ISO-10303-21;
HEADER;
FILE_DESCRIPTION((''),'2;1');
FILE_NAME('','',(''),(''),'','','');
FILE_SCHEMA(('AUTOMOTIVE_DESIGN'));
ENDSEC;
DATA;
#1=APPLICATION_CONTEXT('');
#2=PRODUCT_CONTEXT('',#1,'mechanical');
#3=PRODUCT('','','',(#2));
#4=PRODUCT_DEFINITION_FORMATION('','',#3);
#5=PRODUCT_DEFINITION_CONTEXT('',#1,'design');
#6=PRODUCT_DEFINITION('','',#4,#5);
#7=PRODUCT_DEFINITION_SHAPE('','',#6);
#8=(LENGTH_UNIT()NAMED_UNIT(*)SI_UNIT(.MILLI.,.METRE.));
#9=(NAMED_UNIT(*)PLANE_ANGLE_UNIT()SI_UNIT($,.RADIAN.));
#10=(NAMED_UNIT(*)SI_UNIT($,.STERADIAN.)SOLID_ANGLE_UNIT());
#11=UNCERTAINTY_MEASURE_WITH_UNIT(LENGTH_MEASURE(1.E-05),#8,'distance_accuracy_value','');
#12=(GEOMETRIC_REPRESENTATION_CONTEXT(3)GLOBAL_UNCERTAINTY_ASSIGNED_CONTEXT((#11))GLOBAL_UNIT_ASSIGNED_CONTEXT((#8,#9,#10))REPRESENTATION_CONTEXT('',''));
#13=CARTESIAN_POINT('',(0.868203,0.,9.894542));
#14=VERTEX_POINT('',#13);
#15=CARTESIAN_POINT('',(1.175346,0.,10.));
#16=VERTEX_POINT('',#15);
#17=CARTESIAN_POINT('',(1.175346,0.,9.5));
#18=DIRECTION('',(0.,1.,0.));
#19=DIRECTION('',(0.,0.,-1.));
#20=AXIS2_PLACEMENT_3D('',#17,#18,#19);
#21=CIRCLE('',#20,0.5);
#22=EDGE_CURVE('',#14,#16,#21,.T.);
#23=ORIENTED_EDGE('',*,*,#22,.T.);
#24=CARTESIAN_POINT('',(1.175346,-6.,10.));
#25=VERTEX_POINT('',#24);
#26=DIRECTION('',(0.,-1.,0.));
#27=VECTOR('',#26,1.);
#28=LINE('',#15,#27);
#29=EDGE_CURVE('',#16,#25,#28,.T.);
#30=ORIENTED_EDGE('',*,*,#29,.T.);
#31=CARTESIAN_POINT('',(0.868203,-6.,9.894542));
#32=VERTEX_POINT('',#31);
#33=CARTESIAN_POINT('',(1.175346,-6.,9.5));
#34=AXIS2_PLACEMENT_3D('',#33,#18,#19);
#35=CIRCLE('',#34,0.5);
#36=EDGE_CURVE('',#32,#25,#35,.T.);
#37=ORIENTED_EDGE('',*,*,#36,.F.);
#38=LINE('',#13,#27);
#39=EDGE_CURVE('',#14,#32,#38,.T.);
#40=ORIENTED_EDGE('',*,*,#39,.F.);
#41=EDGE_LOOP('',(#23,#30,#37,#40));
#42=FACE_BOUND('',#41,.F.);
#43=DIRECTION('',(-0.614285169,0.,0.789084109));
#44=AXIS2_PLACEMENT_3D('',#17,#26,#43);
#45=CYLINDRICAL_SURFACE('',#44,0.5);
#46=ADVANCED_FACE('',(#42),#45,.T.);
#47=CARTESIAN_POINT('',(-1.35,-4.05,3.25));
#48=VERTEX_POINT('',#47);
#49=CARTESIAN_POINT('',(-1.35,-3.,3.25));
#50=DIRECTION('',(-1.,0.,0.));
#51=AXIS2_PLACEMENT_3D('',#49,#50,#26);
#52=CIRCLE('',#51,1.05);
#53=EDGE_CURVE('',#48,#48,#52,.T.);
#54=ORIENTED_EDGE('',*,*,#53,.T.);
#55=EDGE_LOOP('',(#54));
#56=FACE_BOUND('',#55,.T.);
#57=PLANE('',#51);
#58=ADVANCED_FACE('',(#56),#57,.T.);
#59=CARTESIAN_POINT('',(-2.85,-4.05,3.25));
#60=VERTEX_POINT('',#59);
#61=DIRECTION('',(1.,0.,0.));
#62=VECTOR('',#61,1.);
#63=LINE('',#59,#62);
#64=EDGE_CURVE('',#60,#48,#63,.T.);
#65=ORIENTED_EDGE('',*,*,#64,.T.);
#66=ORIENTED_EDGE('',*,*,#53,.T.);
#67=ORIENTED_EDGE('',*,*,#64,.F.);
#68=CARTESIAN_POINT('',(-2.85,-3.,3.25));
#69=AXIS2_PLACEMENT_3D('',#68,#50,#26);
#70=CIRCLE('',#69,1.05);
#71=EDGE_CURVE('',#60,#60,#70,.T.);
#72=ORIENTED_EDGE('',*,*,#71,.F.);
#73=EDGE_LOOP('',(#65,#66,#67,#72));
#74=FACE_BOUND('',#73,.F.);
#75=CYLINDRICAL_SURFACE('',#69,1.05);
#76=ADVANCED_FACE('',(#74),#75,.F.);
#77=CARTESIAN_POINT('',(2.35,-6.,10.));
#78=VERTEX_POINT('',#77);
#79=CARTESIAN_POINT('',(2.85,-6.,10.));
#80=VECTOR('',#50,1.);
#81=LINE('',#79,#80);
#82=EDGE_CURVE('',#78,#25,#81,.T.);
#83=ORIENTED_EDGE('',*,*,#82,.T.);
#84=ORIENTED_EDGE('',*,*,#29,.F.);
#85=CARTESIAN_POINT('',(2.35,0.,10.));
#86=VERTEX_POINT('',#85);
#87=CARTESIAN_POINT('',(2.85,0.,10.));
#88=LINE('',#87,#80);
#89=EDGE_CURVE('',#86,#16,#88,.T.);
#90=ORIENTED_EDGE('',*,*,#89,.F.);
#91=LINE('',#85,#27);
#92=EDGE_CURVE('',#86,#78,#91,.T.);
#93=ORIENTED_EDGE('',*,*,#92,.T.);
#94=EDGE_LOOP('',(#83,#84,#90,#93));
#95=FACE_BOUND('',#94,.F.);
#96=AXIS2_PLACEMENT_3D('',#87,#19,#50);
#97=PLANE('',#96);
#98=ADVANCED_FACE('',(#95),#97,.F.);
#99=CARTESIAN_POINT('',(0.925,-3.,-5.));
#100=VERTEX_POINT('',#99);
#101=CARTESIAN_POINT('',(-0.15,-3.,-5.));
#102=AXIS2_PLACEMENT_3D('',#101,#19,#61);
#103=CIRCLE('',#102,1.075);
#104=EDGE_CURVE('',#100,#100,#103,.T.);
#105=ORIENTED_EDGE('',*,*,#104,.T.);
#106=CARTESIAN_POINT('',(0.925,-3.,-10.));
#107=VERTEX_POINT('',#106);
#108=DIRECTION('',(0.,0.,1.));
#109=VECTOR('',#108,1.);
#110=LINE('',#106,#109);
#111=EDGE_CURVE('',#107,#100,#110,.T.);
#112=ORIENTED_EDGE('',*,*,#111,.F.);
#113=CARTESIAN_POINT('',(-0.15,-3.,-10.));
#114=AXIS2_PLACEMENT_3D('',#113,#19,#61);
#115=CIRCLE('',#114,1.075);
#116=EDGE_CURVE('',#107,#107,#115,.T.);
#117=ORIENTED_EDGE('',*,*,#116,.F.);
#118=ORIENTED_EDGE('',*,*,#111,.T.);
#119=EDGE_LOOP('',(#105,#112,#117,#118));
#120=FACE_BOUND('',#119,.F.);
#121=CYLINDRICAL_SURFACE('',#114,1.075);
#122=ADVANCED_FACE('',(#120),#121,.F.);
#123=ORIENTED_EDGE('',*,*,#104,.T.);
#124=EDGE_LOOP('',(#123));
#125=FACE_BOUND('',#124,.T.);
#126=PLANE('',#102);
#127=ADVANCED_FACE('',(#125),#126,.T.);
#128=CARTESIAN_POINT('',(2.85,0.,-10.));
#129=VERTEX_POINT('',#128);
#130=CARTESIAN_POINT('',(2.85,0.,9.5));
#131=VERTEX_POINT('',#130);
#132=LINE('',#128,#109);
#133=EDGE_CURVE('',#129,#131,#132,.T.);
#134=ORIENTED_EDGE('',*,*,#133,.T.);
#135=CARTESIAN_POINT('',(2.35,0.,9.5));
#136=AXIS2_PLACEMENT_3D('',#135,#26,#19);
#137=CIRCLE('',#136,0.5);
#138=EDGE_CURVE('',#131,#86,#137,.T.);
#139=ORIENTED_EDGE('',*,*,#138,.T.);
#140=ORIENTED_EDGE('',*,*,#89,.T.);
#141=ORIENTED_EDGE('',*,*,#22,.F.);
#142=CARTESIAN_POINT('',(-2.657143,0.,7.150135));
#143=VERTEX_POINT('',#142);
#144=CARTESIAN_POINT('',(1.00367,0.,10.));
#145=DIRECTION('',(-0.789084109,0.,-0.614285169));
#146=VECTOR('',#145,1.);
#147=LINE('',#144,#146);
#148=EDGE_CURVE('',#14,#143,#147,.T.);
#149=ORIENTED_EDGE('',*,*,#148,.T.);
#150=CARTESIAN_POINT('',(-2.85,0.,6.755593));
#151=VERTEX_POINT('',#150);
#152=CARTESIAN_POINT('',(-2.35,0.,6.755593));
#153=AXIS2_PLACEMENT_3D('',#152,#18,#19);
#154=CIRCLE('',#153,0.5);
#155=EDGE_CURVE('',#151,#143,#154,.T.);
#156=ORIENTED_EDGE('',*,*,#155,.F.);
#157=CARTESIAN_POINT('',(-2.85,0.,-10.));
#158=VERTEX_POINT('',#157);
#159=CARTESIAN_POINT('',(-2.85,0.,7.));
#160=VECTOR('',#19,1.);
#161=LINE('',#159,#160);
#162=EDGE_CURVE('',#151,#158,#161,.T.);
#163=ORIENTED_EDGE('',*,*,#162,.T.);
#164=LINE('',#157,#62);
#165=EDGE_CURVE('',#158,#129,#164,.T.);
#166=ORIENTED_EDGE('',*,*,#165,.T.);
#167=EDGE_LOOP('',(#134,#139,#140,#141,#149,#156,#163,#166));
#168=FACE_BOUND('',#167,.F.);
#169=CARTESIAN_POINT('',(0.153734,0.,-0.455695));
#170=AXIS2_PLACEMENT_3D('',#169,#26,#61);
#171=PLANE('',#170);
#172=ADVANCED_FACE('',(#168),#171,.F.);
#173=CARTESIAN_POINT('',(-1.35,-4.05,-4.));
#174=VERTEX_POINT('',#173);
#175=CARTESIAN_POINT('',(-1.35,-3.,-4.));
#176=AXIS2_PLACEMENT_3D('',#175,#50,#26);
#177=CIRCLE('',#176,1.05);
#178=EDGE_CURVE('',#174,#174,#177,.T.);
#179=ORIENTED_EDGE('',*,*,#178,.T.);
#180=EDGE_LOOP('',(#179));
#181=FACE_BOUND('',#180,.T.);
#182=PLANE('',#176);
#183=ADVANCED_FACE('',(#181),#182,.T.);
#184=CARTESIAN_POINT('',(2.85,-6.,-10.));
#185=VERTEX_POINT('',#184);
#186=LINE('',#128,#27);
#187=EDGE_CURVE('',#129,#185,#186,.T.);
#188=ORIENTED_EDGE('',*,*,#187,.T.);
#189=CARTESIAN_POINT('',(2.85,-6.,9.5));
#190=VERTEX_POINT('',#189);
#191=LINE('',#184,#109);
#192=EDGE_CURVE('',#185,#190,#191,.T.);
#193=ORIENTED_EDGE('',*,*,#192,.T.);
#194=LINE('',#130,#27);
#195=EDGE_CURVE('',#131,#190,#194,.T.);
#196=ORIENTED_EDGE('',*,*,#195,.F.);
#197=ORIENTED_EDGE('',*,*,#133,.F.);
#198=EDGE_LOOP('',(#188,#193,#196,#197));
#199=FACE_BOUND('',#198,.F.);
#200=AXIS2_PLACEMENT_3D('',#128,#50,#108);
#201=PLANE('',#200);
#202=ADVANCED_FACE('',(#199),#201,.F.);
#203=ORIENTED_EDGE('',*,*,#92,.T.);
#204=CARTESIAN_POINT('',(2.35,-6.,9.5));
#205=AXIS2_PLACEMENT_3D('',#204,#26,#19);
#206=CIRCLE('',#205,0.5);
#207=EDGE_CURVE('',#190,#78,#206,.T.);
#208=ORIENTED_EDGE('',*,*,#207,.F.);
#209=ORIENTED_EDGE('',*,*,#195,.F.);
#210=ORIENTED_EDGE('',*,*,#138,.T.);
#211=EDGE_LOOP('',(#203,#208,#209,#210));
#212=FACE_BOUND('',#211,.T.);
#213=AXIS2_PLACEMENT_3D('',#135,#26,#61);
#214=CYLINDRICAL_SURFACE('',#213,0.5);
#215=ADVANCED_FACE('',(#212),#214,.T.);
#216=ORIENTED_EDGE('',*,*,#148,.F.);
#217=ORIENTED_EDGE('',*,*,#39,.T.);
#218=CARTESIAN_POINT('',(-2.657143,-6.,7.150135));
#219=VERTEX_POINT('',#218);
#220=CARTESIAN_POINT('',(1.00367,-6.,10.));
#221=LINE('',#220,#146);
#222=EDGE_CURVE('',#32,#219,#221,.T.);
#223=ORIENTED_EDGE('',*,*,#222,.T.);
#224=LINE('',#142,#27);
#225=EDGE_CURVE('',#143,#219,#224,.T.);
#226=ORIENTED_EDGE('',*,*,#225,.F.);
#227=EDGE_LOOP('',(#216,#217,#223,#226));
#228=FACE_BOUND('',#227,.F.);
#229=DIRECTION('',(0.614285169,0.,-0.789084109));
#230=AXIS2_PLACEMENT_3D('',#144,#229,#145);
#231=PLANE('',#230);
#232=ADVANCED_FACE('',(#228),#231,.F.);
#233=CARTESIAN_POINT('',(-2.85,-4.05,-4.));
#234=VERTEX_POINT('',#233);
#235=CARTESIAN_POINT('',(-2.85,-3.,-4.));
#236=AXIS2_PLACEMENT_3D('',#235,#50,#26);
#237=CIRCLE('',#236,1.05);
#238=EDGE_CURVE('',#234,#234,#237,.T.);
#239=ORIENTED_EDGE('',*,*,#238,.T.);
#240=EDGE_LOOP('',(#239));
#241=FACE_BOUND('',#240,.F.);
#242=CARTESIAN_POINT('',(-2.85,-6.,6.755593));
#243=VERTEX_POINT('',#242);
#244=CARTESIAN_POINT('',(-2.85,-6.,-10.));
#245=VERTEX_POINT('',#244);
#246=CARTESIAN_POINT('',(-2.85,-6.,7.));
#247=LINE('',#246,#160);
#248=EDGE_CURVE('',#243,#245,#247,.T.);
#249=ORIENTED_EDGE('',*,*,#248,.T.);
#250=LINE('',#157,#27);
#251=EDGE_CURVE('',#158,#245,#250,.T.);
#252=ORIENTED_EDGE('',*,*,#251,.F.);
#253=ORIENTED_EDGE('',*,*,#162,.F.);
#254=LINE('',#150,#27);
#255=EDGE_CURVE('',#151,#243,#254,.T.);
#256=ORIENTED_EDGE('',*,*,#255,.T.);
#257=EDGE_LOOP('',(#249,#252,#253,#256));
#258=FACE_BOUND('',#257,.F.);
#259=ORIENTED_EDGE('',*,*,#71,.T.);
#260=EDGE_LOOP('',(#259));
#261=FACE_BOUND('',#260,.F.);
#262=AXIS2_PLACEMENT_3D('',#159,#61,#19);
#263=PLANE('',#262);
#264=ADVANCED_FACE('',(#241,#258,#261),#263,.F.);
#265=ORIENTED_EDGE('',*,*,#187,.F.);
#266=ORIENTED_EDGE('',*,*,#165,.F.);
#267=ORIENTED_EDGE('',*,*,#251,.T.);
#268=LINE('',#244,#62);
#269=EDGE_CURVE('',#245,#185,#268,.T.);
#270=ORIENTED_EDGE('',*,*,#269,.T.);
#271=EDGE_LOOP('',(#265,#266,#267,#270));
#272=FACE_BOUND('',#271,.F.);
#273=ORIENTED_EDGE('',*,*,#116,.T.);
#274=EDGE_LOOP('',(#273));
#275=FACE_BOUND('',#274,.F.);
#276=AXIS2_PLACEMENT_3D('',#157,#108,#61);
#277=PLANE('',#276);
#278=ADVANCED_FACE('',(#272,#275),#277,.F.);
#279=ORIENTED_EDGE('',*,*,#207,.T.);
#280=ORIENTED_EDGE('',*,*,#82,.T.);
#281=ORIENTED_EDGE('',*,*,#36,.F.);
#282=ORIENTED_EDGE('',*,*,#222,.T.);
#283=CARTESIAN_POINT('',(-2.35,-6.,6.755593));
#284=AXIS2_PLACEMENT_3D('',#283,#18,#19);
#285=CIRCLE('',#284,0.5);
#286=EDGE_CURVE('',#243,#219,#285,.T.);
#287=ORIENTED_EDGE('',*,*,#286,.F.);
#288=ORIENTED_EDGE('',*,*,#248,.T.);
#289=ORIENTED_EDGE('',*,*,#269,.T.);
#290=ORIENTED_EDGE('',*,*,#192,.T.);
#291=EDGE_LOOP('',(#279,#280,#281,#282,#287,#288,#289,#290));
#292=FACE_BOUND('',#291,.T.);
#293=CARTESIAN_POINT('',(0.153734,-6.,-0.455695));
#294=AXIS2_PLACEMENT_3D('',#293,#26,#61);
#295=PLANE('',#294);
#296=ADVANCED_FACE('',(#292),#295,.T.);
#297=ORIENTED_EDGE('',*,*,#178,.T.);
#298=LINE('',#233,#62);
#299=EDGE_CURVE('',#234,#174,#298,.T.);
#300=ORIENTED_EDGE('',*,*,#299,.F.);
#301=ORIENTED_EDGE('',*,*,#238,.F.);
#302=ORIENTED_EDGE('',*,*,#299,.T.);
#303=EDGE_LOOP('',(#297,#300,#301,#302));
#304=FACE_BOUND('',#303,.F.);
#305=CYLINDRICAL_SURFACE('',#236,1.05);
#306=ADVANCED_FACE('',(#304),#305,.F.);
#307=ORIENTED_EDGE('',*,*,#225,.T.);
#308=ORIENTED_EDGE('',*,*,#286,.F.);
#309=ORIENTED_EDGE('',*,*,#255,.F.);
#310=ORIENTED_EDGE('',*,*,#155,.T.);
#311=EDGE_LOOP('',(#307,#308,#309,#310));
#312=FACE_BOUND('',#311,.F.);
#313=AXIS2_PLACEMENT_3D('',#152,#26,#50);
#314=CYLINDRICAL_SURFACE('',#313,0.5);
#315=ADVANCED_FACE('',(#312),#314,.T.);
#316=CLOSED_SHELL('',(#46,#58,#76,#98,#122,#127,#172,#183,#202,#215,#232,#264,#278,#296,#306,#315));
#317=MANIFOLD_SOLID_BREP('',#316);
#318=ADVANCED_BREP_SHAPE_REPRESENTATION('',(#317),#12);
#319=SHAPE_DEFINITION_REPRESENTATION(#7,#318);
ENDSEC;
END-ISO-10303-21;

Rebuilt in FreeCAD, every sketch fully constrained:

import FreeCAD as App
import Part
import Sketcher
from FreeCAD import Vector
Q = App.Units.Quantity


def edges_at(feature, points):
    """Names of the edges that pass closest to the given points."""
    edges = feature.Shape.Edges
    near = lambda p: min(range(len(edges)), key=lambda i: edges[i].distToShape(Part.Vertex(*p))[0])
    return sorted({f"Edge{near(p) + 1}" for p in points})

doc = App.newDocument("Part")
params = doc.addObject("Spreadsheet::Sheet", "Params")
for row, (alias, value) in enumerate([
    ("sketch1_height", "20 mm"),
    ("sketch1_height2", "17 mm"),
    ("sketch1_width", "5.7 mm"),
    ("pad1_length", "6 mm"),
    ("sketch2_diameter", "2.1 mm"),
    ("pocket1_length", "1.5 mm"),
    ("sketch3_diameter", "2.15 mm"),
    ("pocket2_length", "5 mm"),
    ("fillet_radius", "0.5 mm"),
], start=1):
    params.set(f"A{row}", alias)
    params.set(f"B{row}", "=" + value)
    params.setAlias(f"B{row}", alias)

body = doc.addObject("PartDesign::Body", "Body")

# Sketch on XZ plane
sketch1 = body.newObject("Sketcher::SketchObject", "Sketch")
sketch1.AttachmentSupport = (doc.getObject("XZ_Plane"), [""])
sketch1.MapMode = "FlatFace"
sketch1.addGeometry(Part.LineSegment(Vector(-2.9, -10, 0), Vector(2.9, -10, 0)), False)
sketch1.addGeometry(Part.LineSegment(Vector(2.9, -10, 0), Vector(2.9, 10, 0)), False)
sketch1.addGeometry(Part.LineSegment(Vector(2.9, 10, 0), Vector(1, 10, 0)), False)
sketch1.addGeometry(Part.LineSegment(Vector(1, 10, 0), Vector(-2.9, 7, 0)), False)
sketch1.addGeometry(Part.LineSegment(Vector(-2.9, 7, 0), Vector(-2.9, -10, 0)), False)
sketch1.addConstraint(Sketcher.Constraint("Coincident", 0, 2, 1, 1))
sketch1.addConstraint(Sketcher.Constraint("Coincident", 1, 2, 2, 1))
sketch1.addConstraint(Sketcher.Constraint("Coincident", 2, 2, 3, 1))
sketch1.addConstraint(Sketcher.Constraint("Coincident", 3, 2, 4, 1))
sketch1.addConstraint(Sketcher.Constraint("Coincident", 4, 2, 0, 1))
sketch1.addConstraint(Sketcher.Constraint("Horizontal", 0))
sketch1.addConstraint(Sketcher.Constraint("Vertical", 1))
sketch1.addConstraint(Sketcher.Constraint("Horizontal", 2))
sketch1.addConstraint(Sketcher.Constraint("Vertical", 4))
sketch1.addConstraint(Sketcher.Constraint("Symmetric", 1, 2, 4, 2, -1, 1))
sketch1.addConstraint(Sketcher.Constraint("DistanceY", 1, 1, 1, 2, Q("20 mm")))
sketch1.addConstraint(Sketcher.Constraint("DistanceY", 4, 2, 4, 1, Q("17 mm")))
sketch1.addConstraint(Sketcher.Constraint("DistanceX", 0, 1, 0, 2, Q("5.7 mm")))
sketch1.addConstraint(Sketcher.Constraint("Angle", 3, Q("-142.100002 deg")))
sketch1.setExpression("Constraints[10]", "Params.sketch1_height")
sketch1.setExpression("Constraints[11]", "Params.sketch1_height2")
sketch1.setExpression("Constraints[12]", "Params.sketch1_width")
pad1 = body.newObject("PartDesign::Pad", "Pad")
pad1.Profile = sketch1
pad1.setExpression("Length", "Params.pad1_length")

# Sketch on YZ plane
sketch2 = body.newObject("Sketcher::SketchObject", "Sketch001")
sketch2.AttachmentSupport = (doc.getObject("YZ_Plane"), [""])
sketch2.MapMode = "FlatFace"
sketch2.AttachmentOffset = App.Placement(Vector(0, 0, -2.85), App.Rotation())
sketch2.addGeometry(Part.Circle(Vector(-3, -4, 0), Vector(0, 0, 1), 1.1), False)
sketch2.addGeometry(Part.Circle(Vector(-3, 3.2, 0), Vector(0, 0, 1), 1.1), False)
sketch2.addConstraint(Sketcher.Constraint("Equal", 0, 1))
sketch2.addConstraint(Sketcher.Constraint("Vertical", 0, 3, 1, 3))
sketch2.addConstraint(Sketcher.Constraint("Diameter", 0, Q("2.1 mm")))
sketch2.addConstraint(Sketcher.Constraint("DistanceX", 0, 3, -1, 1, Q("3 mm")))
sketch2.addConstraint(Sketcher.Constraint("DistanceY", 0, 3, -1, 1, Q("4 mm")))
sketch2.addConstraint(Sketcher.Constraint("DistanceY", -1, 1, 1, 3, Q("3.25 mm")))
sketch2.setExpression("Constraints[2]", "Params.sketch2_diameter")
pocket1 = body.newObject("PartDesign::Pocket", "Pocket")
pocket1.Profile = sketch2
pocket1.setExpression("Length", "Params.pocket1_length")
pocket1.Reversed = True

# Sketch on XY plane
sketch3 = body.newObject("Sketcher::SketchObject", "Sketch002")
sketch3.AttachmentSupport = (doc.getObject("XY_Plane"), [""])
sketch3.MapMode = "FlatFace"
sketch3.AttachmentOffset = App.Placement(Vector(0, 0, -10), App.Rotation())
sketch3.addGeometry(Part.Circle(Vector(-0.1, -3, 0), Vector(0, 0, 1), 1.1), False)
sketch3.addConstraint(Sketcher.Constraint("Diameter", 0, Q("2.15 mm")))
sketch3.addConstraint(Sketcher.Constraint("DistanceY", 0, 3, -1, 1, Q("3 mm")))
sketch3.addConstraint(Sketcher.Constraint("DistanceX", 0, 3, -1, 1, Q("0.15 mm")))
sketch3.setExpression("Constraints[0]", "Params.sketch3_diameter")
pocket2 = body.newObject("PartDesign::Pocket", "Pocket001")
pocket2.Profile = sketch3
pocket2.setExpression("Length", "Params.pocket2_length")
pocket2.Reversed = True
doc.recompute()

fillet = body.newObject("PartDesign::Fillet", "Fillet")
fillet.Base = (pocket2, edges_at(pocket2, [(2.85, -3, 10), (-2.85, -3, 7), (1.004, -3, 10)]))
fillet.setExpression("Radius", "Params.fillet_radius")

doc.recompute()
